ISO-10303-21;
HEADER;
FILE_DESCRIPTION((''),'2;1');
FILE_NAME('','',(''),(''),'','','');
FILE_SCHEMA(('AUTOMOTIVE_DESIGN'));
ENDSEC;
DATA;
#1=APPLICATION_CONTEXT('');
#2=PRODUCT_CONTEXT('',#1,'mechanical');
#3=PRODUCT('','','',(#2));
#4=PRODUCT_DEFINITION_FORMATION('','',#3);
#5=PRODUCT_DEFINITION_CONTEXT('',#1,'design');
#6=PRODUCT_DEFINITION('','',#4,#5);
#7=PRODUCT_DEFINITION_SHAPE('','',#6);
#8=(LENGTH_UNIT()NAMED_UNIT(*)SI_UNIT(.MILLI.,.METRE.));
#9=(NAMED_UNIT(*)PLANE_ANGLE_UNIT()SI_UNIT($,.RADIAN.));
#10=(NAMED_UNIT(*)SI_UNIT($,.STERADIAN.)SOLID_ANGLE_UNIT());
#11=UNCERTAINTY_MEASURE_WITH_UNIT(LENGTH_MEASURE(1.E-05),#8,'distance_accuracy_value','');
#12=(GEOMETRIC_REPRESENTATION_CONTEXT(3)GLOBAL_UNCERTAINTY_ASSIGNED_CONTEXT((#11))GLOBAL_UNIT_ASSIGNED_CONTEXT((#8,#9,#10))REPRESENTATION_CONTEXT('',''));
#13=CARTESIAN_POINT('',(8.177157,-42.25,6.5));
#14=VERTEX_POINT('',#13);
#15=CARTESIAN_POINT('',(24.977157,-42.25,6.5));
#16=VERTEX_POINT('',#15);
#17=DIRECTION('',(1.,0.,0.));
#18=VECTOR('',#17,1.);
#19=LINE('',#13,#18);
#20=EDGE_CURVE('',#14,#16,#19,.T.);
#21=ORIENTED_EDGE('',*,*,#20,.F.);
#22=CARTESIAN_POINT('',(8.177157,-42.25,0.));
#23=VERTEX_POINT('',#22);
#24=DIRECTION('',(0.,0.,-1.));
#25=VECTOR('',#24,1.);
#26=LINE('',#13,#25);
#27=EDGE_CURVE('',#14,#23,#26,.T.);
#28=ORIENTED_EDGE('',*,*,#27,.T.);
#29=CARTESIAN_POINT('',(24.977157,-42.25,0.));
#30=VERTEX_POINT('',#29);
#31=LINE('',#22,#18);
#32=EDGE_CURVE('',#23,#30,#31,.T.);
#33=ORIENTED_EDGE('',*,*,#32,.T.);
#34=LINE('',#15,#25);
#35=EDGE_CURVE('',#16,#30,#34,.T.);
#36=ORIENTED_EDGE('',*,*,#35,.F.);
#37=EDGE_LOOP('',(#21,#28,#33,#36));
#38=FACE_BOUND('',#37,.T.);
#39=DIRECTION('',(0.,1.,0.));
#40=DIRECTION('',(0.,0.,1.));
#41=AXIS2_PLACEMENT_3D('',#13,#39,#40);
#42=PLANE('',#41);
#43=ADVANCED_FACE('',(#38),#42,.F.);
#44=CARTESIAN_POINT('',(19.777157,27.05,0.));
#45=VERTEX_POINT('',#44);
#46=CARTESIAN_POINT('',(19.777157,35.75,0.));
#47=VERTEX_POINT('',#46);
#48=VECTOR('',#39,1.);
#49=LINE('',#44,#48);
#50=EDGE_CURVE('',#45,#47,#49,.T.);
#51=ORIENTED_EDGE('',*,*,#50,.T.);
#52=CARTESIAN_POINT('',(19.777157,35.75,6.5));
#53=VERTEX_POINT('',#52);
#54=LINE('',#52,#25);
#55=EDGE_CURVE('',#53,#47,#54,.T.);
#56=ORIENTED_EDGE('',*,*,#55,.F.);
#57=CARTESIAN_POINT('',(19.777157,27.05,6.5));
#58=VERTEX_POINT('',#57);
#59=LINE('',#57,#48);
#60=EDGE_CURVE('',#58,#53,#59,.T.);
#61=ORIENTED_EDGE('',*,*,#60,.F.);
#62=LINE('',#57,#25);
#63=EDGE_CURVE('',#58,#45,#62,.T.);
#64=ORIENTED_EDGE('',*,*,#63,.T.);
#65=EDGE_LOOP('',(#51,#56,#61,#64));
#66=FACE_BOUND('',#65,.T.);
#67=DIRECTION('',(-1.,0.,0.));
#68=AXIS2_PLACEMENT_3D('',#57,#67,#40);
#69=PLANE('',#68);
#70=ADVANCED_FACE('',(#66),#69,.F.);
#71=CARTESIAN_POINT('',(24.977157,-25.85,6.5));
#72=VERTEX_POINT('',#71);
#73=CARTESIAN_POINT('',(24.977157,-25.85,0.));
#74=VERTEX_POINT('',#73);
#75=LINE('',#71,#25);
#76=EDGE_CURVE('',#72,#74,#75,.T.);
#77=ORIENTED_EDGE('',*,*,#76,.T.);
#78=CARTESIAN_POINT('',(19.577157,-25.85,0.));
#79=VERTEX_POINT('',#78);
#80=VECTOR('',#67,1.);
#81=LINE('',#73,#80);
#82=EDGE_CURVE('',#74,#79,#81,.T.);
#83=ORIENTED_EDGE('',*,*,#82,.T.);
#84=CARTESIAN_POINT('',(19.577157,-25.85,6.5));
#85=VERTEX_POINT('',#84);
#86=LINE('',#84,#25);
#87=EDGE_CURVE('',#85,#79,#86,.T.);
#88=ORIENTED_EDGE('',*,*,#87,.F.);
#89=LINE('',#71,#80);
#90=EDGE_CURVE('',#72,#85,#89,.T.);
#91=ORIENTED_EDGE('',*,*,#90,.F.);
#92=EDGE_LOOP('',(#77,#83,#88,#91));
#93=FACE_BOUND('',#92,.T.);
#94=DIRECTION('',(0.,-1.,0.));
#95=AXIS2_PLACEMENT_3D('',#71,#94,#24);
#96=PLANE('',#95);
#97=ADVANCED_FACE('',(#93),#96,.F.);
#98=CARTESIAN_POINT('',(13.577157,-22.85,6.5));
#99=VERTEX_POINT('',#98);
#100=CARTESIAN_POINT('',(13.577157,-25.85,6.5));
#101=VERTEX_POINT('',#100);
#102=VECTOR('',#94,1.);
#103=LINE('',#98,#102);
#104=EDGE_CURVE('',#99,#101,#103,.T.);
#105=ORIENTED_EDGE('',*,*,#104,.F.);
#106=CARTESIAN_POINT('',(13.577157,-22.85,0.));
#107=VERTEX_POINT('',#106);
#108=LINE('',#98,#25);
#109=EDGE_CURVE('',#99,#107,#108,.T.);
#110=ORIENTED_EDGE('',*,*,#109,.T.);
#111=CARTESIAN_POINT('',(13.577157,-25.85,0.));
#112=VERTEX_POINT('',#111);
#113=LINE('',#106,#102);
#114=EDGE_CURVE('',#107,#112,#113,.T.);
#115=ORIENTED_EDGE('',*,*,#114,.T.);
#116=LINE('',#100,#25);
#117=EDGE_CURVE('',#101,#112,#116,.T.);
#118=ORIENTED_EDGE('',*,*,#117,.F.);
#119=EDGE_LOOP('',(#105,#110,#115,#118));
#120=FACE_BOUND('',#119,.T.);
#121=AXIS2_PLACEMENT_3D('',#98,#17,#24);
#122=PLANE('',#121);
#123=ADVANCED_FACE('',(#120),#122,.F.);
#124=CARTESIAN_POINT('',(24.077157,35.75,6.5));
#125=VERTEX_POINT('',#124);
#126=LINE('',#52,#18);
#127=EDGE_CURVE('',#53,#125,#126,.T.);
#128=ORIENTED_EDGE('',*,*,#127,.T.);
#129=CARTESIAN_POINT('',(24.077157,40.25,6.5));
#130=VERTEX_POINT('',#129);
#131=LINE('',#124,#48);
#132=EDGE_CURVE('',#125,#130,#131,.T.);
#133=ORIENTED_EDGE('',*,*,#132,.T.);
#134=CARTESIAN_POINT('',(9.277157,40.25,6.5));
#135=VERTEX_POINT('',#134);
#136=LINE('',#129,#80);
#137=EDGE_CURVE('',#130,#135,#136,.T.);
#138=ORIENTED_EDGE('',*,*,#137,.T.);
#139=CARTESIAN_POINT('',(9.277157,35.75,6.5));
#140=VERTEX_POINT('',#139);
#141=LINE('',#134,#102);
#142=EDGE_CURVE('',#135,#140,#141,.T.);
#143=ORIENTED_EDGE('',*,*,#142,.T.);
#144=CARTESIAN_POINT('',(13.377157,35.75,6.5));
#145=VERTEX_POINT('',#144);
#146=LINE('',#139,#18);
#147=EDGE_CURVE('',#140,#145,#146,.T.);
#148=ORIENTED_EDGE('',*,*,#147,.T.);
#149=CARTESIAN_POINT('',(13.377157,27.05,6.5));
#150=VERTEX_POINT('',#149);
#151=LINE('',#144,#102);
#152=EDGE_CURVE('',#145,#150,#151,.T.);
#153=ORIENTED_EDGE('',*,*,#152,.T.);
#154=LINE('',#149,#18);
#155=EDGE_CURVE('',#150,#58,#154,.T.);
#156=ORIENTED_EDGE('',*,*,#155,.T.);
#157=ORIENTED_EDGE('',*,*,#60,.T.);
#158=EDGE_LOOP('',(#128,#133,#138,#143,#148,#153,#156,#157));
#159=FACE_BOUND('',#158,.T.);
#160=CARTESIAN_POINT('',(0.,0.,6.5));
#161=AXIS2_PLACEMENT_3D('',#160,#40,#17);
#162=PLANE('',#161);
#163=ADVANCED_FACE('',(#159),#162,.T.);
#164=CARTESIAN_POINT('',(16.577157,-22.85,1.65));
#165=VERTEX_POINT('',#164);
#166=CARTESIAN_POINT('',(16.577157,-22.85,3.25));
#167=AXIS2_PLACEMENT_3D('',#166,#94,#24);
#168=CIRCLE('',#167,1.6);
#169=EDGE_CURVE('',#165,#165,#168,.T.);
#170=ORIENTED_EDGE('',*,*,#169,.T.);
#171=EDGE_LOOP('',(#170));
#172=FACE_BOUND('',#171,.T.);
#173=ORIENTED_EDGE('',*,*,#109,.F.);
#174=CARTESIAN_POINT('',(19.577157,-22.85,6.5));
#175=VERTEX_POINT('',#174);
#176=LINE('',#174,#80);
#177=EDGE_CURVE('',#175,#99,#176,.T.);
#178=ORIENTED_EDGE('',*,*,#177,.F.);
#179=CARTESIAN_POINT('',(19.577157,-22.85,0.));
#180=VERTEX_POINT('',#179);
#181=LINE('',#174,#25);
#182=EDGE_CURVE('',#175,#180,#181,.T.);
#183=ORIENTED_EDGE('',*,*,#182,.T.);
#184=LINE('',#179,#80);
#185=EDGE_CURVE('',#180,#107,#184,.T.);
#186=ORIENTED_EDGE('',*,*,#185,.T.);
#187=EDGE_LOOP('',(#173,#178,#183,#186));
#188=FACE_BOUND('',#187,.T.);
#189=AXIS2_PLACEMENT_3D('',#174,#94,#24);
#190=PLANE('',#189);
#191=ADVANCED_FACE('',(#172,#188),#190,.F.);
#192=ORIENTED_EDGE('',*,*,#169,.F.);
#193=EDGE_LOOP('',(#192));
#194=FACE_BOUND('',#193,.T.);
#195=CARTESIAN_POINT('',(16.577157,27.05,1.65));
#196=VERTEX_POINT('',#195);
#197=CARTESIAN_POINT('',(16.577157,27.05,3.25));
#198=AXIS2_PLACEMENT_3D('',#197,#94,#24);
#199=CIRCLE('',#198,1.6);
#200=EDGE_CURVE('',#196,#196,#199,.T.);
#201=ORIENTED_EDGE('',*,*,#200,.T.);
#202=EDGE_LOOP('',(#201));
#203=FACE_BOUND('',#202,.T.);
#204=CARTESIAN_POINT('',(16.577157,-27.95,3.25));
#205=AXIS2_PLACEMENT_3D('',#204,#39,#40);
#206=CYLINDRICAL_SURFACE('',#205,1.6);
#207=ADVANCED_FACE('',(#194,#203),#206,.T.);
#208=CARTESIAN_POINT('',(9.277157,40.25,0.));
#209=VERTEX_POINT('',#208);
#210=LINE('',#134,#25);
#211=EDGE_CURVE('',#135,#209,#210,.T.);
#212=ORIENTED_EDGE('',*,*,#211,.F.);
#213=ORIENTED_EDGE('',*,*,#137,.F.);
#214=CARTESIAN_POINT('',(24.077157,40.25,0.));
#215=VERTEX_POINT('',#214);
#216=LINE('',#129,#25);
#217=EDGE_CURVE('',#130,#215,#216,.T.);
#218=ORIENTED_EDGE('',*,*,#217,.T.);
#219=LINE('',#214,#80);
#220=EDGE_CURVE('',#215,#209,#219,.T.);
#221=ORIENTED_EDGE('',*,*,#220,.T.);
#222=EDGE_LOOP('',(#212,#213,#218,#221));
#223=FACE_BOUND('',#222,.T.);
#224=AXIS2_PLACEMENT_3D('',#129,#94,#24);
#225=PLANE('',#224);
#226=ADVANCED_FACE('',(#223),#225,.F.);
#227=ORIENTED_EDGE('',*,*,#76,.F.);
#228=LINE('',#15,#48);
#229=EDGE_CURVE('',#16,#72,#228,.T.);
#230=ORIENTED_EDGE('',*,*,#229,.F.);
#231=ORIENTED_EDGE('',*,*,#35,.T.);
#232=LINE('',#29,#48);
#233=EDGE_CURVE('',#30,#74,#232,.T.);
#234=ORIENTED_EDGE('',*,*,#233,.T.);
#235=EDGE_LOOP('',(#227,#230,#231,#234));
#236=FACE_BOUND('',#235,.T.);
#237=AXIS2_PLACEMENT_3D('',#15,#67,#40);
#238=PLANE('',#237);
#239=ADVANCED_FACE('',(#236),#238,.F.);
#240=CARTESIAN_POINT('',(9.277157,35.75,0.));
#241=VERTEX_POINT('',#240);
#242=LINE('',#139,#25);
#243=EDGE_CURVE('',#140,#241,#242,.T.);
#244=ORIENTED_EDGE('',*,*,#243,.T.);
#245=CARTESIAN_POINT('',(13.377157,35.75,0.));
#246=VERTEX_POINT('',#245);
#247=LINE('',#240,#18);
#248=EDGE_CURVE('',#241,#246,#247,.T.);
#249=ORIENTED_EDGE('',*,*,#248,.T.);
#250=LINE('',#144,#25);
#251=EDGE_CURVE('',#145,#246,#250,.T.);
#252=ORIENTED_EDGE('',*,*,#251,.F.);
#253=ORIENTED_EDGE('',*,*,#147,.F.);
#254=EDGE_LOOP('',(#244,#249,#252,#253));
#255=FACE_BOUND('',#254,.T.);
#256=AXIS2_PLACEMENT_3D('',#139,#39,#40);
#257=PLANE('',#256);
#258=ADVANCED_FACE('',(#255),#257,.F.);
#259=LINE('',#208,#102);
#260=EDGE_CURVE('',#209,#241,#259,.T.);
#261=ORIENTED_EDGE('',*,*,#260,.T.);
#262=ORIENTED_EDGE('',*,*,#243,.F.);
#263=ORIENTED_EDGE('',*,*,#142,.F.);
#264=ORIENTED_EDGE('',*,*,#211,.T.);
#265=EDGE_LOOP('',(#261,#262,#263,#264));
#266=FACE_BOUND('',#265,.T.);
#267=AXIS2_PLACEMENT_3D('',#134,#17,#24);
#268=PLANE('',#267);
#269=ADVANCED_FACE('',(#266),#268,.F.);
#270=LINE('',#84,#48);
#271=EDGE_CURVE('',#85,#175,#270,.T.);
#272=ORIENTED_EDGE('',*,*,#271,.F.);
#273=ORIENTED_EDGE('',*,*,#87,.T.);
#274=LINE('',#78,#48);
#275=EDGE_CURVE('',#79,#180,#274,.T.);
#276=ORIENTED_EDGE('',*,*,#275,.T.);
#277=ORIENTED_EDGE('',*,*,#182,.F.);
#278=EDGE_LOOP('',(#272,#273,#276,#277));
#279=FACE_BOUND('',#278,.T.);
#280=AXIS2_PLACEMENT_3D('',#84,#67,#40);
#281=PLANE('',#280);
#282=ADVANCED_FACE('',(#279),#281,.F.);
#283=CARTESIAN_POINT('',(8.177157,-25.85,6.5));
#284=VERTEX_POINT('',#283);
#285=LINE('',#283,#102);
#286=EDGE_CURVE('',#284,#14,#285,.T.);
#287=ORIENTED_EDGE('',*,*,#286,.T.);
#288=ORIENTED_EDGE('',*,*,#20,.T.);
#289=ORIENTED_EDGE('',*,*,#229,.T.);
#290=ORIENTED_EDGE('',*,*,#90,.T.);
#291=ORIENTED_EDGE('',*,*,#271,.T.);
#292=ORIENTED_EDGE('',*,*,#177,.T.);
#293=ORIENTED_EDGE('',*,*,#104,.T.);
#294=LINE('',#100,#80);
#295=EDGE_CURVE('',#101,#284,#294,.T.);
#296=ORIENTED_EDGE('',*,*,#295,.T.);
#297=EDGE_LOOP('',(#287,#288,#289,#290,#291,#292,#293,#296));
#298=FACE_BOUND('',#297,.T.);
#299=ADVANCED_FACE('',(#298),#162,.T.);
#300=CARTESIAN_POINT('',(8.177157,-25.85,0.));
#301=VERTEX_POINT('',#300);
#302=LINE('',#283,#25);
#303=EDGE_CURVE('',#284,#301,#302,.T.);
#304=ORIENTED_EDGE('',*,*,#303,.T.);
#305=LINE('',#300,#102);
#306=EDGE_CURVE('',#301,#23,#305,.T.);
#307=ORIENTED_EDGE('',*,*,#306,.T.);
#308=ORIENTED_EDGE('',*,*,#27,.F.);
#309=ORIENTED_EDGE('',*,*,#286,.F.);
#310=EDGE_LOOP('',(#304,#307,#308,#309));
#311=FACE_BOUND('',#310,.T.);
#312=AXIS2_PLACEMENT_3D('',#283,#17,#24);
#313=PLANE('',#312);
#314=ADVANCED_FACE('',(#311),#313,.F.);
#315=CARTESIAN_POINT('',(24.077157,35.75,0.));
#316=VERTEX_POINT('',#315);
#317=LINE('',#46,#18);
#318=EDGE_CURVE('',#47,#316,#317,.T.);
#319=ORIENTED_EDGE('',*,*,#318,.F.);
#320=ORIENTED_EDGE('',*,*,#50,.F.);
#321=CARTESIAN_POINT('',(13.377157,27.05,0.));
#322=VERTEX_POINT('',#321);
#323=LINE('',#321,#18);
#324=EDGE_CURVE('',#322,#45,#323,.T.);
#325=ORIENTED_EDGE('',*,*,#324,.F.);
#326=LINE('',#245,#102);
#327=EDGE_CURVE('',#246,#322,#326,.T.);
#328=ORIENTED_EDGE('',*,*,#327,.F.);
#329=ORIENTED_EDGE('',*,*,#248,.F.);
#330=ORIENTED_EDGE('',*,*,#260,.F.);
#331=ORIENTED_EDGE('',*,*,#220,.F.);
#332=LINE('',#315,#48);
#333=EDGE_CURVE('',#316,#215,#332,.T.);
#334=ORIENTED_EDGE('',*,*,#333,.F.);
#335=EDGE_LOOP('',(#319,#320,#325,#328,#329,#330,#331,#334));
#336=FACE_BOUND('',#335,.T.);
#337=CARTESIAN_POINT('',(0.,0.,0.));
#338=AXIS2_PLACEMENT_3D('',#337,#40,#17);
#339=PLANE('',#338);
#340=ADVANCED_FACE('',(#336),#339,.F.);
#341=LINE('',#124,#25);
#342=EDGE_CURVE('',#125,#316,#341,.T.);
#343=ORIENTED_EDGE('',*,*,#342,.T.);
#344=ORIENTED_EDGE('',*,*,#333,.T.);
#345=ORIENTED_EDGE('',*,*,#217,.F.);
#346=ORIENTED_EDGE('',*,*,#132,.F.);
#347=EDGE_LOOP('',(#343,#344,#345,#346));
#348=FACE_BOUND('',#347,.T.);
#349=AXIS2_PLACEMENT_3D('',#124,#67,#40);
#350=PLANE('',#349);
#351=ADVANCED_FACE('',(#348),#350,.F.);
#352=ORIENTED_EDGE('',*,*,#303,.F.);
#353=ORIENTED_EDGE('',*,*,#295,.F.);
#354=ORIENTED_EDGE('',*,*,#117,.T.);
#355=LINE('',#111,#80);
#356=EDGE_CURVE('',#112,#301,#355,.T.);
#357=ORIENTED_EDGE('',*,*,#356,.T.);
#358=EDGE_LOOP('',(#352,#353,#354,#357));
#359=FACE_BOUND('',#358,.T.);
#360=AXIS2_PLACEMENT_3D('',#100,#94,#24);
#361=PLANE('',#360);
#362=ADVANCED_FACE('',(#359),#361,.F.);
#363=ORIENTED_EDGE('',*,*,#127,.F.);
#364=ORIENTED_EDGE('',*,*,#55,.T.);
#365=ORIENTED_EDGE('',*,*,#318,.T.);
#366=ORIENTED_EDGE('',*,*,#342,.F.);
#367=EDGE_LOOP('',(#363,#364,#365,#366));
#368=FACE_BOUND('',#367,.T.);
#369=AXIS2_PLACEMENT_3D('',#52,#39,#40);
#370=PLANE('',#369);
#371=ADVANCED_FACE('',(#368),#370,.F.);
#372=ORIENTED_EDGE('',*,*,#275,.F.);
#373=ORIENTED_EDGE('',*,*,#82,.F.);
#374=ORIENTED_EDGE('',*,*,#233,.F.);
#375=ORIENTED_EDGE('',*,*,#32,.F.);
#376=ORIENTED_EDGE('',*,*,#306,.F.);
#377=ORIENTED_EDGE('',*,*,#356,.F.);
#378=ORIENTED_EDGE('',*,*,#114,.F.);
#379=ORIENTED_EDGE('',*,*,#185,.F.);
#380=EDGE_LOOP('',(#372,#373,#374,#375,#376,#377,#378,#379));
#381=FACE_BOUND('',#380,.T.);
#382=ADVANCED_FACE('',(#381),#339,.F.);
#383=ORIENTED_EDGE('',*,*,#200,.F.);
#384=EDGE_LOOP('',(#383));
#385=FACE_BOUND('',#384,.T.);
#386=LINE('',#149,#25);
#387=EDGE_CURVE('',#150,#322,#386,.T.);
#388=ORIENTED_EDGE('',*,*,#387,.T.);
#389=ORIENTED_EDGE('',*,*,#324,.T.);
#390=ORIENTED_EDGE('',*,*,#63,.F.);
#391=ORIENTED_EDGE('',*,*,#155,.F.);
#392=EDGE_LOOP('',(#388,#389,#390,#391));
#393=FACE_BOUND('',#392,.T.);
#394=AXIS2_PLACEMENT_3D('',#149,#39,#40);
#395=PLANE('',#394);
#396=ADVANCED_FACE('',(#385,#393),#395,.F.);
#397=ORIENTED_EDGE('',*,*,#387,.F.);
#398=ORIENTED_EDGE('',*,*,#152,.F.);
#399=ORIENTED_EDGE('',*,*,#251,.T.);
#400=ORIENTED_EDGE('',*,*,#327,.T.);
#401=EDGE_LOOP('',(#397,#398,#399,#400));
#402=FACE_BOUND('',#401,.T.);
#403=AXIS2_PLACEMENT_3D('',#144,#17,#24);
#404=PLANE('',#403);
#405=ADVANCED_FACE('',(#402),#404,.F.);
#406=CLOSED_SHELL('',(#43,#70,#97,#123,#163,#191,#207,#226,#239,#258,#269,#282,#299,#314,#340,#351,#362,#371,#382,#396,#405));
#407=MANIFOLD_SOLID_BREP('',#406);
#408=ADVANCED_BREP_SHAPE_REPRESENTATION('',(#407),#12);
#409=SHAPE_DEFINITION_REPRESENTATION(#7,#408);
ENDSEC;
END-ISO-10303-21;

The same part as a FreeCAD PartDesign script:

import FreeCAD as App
import Part
import Sketcher
Q = App.Units.Quantity


def add_polygon(sketch, points):
    """Adds a closed chain of lines whose ends are joined by coincident constraints."""
    first, n = sketch.GeometryCount, len(points)
    for a, b in zip(points, points[1:] + points[:1]):
        sketch.addGeometry(Part.LineSegment(App.Vector(*a, 0), App.Vector(*b, 0)), False)
    for i in range(n):
        sketch.addConstraint(Sketcher.Constraint("Coincident", first + i, 2, first + (i + 1) % n, 1))

doc = App.newDocument("Part")
params = doc.addObject("Spreadsheet::Sheet", "Params")
for row, (alias, value) in enumerate([
    ("sketch1_width", "4.1 mm"),
    ("sketch1_width2", "6.4 mm"),
    ("sketch1_width3", "4.3 mm"),
    ("sketch1_height", "8.7 mm"),
    ("sketch1_height2", "4.5 mm"),
    ("pad1_length", "6.5 mm"),
    ("sketch2_width", "6 mm"),
    ("sketch2_height", "3 mm"),
    ("sketch2_width2", "16.8 mm"),
    ("sketch2_height2", "16.4 mm"),
    ("pad2_length", "6.5 mm"),
    ("sketch3_diameter", "3.2 mm"),
    ("pad3_length", "55 mm"),
], start=1):
    params.set(f"A{row}", alias)
    params.set(f"B{row}", "=" + value)
    params.setAlias(f"B{row}", alias)

body = doc.addObject("PartDesign::Body", "Body")

# Sketch on XY plane
sketch1 = body.newObject("Sketcher::SketchObject", "Sketch")
sketch1.AttachmentSupport = (doc.getObject("XY_Plane"), [""])
sketch1.MapMode = "FlatFace"
add_polygon(sketch1, [(9.3, 35.8), (13.4, 35.8), (13.4, 27.1), (19.8, 27.1), (19.8, 35.8), (24.1, 35.8), (24.1, 40.2), (9.3, 40.2)])  # lines 0-7
sketch1.addConstraint([
    Sketcher.Constraint("Horizontal", 0),
    Sketcher.Constraint("Vertical", 1),
    Sketcher.Constraint("Horizontal", 2),
    Sketcher.Constraint("Vertical", 3),
    Sketcher.Constraint("Horizontal", 4),
    Sketcher.Constraint("Vertical", 5),
    Sketcher.Constraint("Horizontal", 6),
    Sketcher.Constraint("Vertical", 7),
    Sketcher.Constraint("Horizontal", 0, 2, 3, 2),
    Sketcher.Constraint("DistanceX", 0, 1, 0, 2, Q("4.1 mm")),
    Sketcher.Constraint("DistanceX", 2, 1, 2, 2, Q("6.4 mm")),
    Sketcher.Constraint("DistanceX", 4, 1, 4, 2, Q("4.3 mm")),
    Sketcher.Constraint("DistanceY", 1, 2, 1, 1, Q("8.7 mm")),
    Sketcher.Constraint("DistanceY", 5, 1, 5, 2, Q("4.5 mm")),
    Sketcher.Constraint("DistanceY", -1, 1, 0, 2, Q("35.75 mm")),
    Sketcher.Constraint("DistanceX", -1, 1, 0, 2, Q("13.377157 mm")),
])
sketch1.setExpression("Constraints[17]", "Params.sketch1_width")
sketch1.setExpression("Constraints[18]", "Params.sketch1_width2")
sketch1.setExpression("Constraints[19]", "Params.sketch1_width3")
sketch1.setExpression("Constraints[20]", "Params.sketch1_height")
sketch1.setExpression("Constraints[21]", "Params.sketch1_height2")
pad1 = body.newObject("PartDesign::Pad", "Pad")
pad1.Profile = sketch1
pad1.setExpression("Length", "Params.pad1_length")
body2 = doc.addObject("PartDesign::Body", "Body001")

# Sketch on XY plane
sketch2 = body2.newObject("Sketcher::SketchObject", "Sketch001")
sketch2.AttachmentSupport = (doc.getObject("XY_Plane001"), [""])
sketch2.MapMode = "FlatFace"
add_polygon(sketch2, [(8.2, -42.2), (25, -42.2), (25, -25.9), (19.6, -25.9), (19.6, -22.9), (13.6, -22.9), (13.6, -25.9), (8.2, -25.9)])  # lines 0-7
sketch2.addConstraint([
    Sketcher.Constraint("Horizontal", 0),
    Sketcher.Constraint("Vertical", 1),
    Sketcher.Constraint("Horizontal", 2),
    Sketcher.Constraint("Vertical", 3),
    Sketcher.Constraint("Horizontal", 4),
    Sketcher.Constraint("Vertical", 5),
    Sketcher.Constraint("Horizontal", 6),
    Sketcher.Constraint("Vertical", 7),
    Sketcher.Constraint("Horizontal", 2, 2, 5, 2),
    Sketcher.Constraint("Equal", 2, 6),
    Sketcher.Constraint("DistanceX", 4, 2, 4, 1, Q("6 mm")),
    Sketcher.Constraint("DistanceY", 3, 1, 3, 2, Q("3 mm")),
    Sketcher.Constraint("DistanceX", 0, 1, 0, 2, Q("16.8 mm")),
    Sketcher.Constraint("DistanceY", 1, 1, 1, 2, Q("16.4 mm")),
    Sketcher.Constraint("DistanceY", 0, 2, -1, 1, Q("42.25 mm")),
    Sketcher.Constraint("DistanceX", -1, 1, 0, 2, Q("24.977157 mm")),
])
sketch2.setExpression("Constraints[18]", "Params.sketch2_width")
sketch2.setExpression("Constraints[19]", "Params.sketch2_height")
sketch2.setExpression("Constraints[20]", "Params.sketch2_width2")
sketch2.setExpression("Constraints[21]", "Params.sketch2_height2")
pad2 = body2.newObject("PartDesign::Pad", "Pad001")
pad2.Profile = sketch2
pad2.setExpression("Length", "Params.pad2_length")
body.AllowCompound = True
doc.recompute()

boolean = body.newObject("PartDesign::Boolean", "Boolean")
boolean.Type = "Fuse"
boolean.addObjects([body2])

# Sketch on XZ plane
sketch3 = body.newObject("Sketcher::SketchObject", "Sketch002")
sketch3.AttachmentSupport = (doc.getObject("XZ_Plane"), [""])
sketch3.MapMode = "FlatFace"
sketch3.AttachmentOffset = App.Placement(App.Vector(0, 0, -27.05), App.Rotation())
sketch3.addGeometry(Part.Circle(App.Vector(16.6, 3.2, 0), App.Vector(0, 0, 1), 1.6), False)
sketch3.addConstraint([
    Sketcher.Constraint("Diameter", 0, Q("3.2 mm")),
    Sketcher.Constraint("DistanceY", -1, 1, 0, 3, Q("3.25 mm")),
    Sketcher.Constraint("DistanceX", -1, 1, 0, 3, Q("16.577157 mm")),
])
sketch3.setExpression("Constraints[0]", "Params.sketch3_diameter")
pad3 = body.newObject("PartDesign::Pad", "Pad002")
pad3.Profile = sketch3
pad3.setExpression("Length", "Params.pad3_length")

doc.recompute()
